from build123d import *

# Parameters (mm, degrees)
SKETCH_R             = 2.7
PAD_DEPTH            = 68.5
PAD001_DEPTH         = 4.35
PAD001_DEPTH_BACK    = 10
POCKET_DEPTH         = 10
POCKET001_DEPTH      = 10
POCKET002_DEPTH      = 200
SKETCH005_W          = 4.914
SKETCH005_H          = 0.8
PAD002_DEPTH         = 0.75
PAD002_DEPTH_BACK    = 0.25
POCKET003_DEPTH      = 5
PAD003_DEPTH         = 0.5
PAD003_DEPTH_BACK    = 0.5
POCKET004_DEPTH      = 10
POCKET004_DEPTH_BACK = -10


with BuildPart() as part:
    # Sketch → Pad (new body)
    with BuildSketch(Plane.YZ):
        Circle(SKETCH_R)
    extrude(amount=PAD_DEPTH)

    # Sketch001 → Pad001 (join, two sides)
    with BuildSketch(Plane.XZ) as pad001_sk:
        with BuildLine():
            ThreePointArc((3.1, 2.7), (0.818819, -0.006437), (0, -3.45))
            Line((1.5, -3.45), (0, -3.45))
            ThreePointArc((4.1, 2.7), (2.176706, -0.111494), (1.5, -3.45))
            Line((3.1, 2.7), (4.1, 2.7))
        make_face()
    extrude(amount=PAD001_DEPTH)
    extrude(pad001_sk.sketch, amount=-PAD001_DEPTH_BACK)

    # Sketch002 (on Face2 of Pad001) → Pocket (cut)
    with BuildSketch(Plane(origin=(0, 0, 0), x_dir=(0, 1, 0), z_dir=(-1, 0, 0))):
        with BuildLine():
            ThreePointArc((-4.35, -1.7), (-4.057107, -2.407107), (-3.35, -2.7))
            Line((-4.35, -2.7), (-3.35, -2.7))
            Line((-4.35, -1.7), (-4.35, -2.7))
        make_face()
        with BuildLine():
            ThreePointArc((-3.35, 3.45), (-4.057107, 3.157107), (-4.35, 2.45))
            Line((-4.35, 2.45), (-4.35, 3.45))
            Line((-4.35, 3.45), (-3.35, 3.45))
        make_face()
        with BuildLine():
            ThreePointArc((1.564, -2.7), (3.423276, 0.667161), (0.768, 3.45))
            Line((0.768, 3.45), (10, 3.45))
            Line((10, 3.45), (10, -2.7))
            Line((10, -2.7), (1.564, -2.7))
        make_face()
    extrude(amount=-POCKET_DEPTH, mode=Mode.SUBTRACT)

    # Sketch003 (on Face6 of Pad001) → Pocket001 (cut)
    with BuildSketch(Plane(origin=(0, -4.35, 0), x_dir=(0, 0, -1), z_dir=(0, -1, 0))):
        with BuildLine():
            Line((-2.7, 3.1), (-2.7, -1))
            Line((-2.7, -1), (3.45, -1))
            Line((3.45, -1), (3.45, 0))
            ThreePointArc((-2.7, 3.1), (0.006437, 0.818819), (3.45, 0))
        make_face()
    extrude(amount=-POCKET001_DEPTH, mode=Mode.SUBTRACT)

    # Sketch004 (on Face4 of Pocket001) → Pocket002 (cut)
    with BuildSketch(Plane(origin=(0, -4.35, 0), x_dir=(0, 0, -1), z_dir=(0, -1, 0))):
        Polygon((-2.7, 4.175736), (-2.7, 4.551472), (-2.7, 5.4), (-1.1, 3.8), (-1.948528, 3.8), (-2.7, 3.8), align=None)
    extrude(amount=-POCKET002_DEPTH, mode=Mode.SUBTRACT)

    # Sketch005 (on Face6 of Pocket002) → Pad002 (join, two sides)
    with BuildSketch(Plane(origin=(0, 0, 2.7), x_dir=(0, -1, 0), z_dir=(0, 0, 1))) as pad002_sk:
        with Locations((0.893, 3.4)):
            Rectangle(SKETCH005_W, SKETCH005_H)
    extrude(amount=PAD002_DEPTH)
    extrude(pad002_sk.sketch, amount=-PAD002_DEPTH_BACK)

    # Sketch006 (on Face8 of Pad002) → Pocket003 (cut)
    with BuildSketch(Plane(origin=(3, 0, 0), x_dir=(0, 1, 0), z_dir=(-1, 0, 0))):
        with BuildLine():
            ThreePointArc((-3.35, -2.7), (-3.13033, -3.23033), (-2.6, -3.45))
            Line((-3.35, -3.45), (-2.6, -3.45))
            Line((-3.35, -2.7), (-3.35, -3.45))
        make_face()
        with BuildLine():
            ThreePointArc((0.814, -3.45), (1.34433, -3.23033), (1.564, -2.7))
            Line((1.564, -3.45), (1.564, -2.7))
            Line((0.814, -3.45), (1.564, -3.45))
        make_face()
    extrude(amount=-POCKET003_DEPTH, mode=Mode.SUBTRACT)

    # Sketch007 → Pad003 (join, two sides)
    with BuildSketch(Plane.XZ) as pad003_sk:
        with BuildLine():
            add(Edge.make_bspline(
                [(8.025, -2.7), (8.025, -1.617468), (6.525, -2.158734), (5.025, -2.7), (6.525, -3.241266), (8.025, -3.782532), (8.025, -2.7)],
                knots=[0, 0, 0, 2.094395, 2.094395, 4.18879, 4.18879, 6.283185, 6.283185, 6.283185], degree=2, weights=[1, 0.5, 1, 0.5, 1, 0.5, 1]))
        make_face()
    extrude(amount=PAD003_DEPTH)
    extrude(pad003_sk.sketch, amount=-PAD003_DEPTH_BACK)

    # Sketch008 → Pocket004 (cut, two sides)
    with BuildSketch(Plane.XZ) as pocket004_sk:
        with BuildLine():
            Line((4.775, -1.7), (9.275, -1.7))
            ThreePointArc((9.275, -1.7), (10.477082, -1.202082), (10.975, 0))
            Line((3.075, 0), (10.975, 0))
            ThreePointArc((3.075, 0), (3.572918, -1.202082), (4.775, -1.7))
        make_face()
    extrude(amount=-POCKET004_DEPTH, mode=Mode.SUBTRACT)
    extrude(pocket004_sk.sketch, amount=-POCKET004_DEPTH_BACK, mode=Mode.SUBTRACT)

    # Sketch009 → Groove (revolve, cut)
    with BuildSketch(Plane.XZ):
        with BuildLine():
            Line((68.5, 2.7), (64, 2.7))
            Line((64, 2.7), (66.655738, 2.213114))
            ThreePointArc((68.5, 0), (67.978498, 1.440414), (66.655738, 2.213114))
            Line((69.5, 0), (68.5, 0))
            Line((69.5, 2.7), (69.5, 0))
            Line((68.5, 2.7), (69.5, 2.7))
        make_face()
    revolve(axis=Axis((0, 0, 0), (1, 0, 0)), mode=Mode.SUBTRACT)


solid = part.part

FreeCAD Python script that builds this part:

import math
import FreeCAD as App
import Part
import Sketcher
from FreeCAD import Vector
Q = App.Units.Quantity

doc = App.newDocument("Part")
body = doc.addObject("PartDesign::Body", "Body")

sketch1 = body.newObject("Sketcher::SketchObject", "Sketch")
sketch1.AttachmentSupport = (doc.getObject("YZ_Plane"), [""])
sketch1.MapMode = "FlatFace"
sketch1.addGeometry(Part.Circle(Vector(0, 0, 0), Vector(0, 0, 1), 2.7), False)
sketch1.addConstraint([
    Sketcher.Constraint("Coincident", 0, 3, -1, 1),
    Sketcher.Constraint("Diameter", 0, Q("5.4 mm")),
])
pad1 = body.newObject("PartDesign::Pad", "Pad")
pad1.Profile = sketch1
pad1.Length = 68.5

sketch2 = body.newObject("Sketcher::SketchObject", "Sketch001")
sketch2.AttachmentSupport = (doc.getObject("XZ_Plane"), [""])
sketch2.MapMode = "FlatFace"
sketch2.addGeometry([
    Part.ArcOfCircle(Part.Circle(Vector(7.7, -3.5, 0), Vector(0, 0, 1), 7.7), math.radians(126), math.radians(180)),
    Part.LineSegment(Vector(0, -3.5, 0), Vector(1.5, -3.5, 0)),
    Part.ArcOfCircle(Part.Circle(Vector(10.1, -3.5, 0), Vector(0, 0, 1), 8.6), math.radians(134), math.radians(180)),
    Part.LineSegment(Vector(4.1, 2.7, 0), Vector(3.1, 2.7, 0)),
], False)
sketch2.addConstraint([
    Sketcher.Constraint("Coincident", 0, 2, 1, 1),
    Sketcher.Constraint("Coincident", 1, 2, 2, 2),
    Sketcher.Constraint("Coincident", 2, 1, 3, 1),
    Sketcher.Constraint("Coincident", 3, 2, 0, 1),
    Sketcher.Constraint("Horizontal", 1),
    Sketcher.Constraint("Horizontal", 3),
    Sketcher.Constraint("PointOnObject", 0, 2, -2),
    Sketcher.Constraint("Horizontal", 0, 3, 2, 3),
    Sketcher.Constraint("Horizontal", 2, 3, 0, 2),
    Sketcher.Constraint("DistanceX", 3, 2, 3, 1, Q("1 mm")),
    Sketcher.Constraint("DistanceX", 1, 1, 1, 2, Q("1.5 mm")),
    Sketcher.Constraint("DistanceX", -1, 1, 2, 1, Q("4.1 mm")),
    Sketcher.Constraint("DistanceY", -1, 1, 2, 1, Q("2.7 mm")),
    Sketcher.Constraint("DistanceY", 0, 3, -1, 1, Q("3.45 mm")),
])
pad2 = body.newObject("PartDesign::Pad", "Pad001")
pad2.Profile = sketch2
pad2.Type = "TwoLengths"
pad2.Length = 4.35
pad2.Length2 = 10

sketch3 = body.newObject("Sketcher::SketchObject", "Sketch002")
sketch3.AttachmentSupport = (doc.getObject("YZ_Plane"), [""])
sketch3.MapMode = "FlatFace"
sketch3.addGeometry([
    Part.ArcOfCircle(Part.Circle(Vector(-3.4, 1.7, 0), Vector(0, 0, 1), 1), math.radians(90), math.radians(180)),
    Part.LineSegment(Vector(-4.3, 1.7, 0), Vector(-4.3, 2.7, 0)),
    Part.LineSegment(Vector(-4.3, 2.7, 0), Vector(-3.4, 2.7, 0)),
    Part.ArcOfCircle(Part.Circle(Vector(-3.4, -2.5, 0), Vector(0, 0, 1), 1), math.radians(180), math.radians(270)),
    Part.LineSegment(Vector(-3.4, -3.5, 0), Vector(-4.3, -3.5, 0)),
    Part.LineSegment(Vector(-4.3, -3.5, 0), Vector(-4.3, -2.5, 0)),
    Part.ArcOfCircle(Part.Circle(Vector(0.2, -0.2, 0), Vector(0, 0, 1), 3.3), math.radians(-80), math.radians(65)),
    Part.LineSegment(Vector(1.6, 2.7, 0), Vector(10, 2.7, 0)),
    Part.LineSegment(Vector(10, 2.7, 0), Vector(10, -3.5, 0)),
    Part.LineSegment(Vector(10, -3.5, 0), Vector(0.8, -3.5, 0)),
], False)
sketch3.addConstraint([
    Sketcher.Constraint("Tangent", 0, 2, 1, 1),
    Sketcher.Constraint("Coincident", 1, 2, 2, 1),
    Sketcher.Constraint("Tangent", 2, 2, 0, 1),
    Sketcher.Constraint("Tangent", 3, 2, 4, 1),
    Sketcher.Constraint("Coincident", 4, 2, 5, 1),
    Sketcher.Constraint("Tangent", 5, 2, 3, 1),
    Sketcher.Constraint("Coincident", 6, 2, 7, 1),
    Sketcher.Constraint("Coincident", 7, 2, 8, 1),
    Sketcher.Constraint("Coincident", 8, 2, 9, 1),
    Sketcher.Constraint("Coincident", 9, 2, 6, 1),
    Sketcher.Constraint("Vertical", 1),
    Sketcher.Constraint("Horizontal", 2),
    Sketcher.Constraint("Horizontal", 4),
    Sketcher.Constraint("Vertical", 5),
    Sketcher.Constraint("Horizontal", 7),
    Sketcher.Constraint("Vertical", 8),
    Sketcher.Constraint("Horizontal", 9),
    Sketcher.Constraint("Equal", 0, 3),
    Sketcher.Constraint("Horizontal", 2, 2, 6, 2),
    Sketcher.Constraint("Horizontal", 4, 2, 8, 2),
    Sketcher.Constraint("Vertical", 0, 3, 3, 3),
    Sketcher.Constraint("Radius", 0, Q("0.999999 mm")),
    Sketcher.Constraint("Radius", 6, Q("3.25 mm")),
    Sketcher.Constraint("DistanceX", -1, 1, 7, 2, Q("10 mm")),
    Sketcher.Constraint("DistanceY", 8, 2, 8, 1, Q("6.15 mm")),
    Sketcher.Constraint("DistanceY", -1, 1, 0, 3, Q("1.700001 mm")),
    Sketcher.Constraint("DistanceX", 7, 1, 7, 2, Q("8.436 mm")),
    Sketcher.Constraint("DistanceX", 9, 2, 9, 1, Q("9.232 mm")),
    Sketcher.Constraint("DistanceX", 0, 3, -1, 1, Q("3.350001 mm")),
])
pocket1 = body.newObject("PartDesign::Pocket", "Pocket")
pocket1.Profile = sketch3
pocket1.Length = 10
pocket1.Reversed = True

sketch4 = body.newObject("Sketcher::SketchObject", "Sketch003")
sketch4.AttachmentSupport = (doc.getObject("XZ_Plane"), [""])
sketch4.MapMode = "FlatFace"
sketch4.AttachmentOffset = App.Placement(Vector(0, 0, 4.35), App.Rotation())
sketch4.addGeometry([
    Part.LineSegment(Vector(3.1, 2.7, 0), Vector(-1, 2.7, 0)),
    Part.LineSegment(Vector(-1, 2.7, 0), Vector(-1, -3.5, 0)),
    Part.LineSegment(Vector(-1, -3.5, 0), Vector(0, -3.5, 0)),
    Part.ArcOfCircle(Part.Circle(Vector(7.7, -3.5, 0), Vector(0, 0, 1), 7.7), math.radians(126), math.radians(180)),
], False)
sketch4.addConstraint([
    Sketcher.Constraint("Coincident", 0, 2, 1, 1),
    Sketcher.Constraint("Coincident", 1, 2, 2, 1),
    Sketcher.Constraint("Coincident", 2, 2, 3, 2),
    Sketcher.Constraint("Coincident", 3, 1, 0, 1),
    Sketcher.Constraint("Horizontal", 0),
    Sketcher.Constraint("Vertical", 1),
    Sketcher.Constraint("Horizontal", 2),
    Sketcher.Constraint("PointOnObject", 2, 2, -2),
    Sketcher.Constraint("Horizontal", 3, 3, 1, 2),
    Sketcher.Constraint("DistanceX", 2, 1, 2, 2, Q("1 mm")),
    Sketcher.Constraint("DistanceX", 0, 2, 0, 1, Q("4.1 mm")),
    Sketcher.Constraint("DistanceY", 1, 2, 1, 1, Q("6.15 mm")),
    Sketcher.Constraint("DistanceY", -1, 1, 0, 2, Q("2.7 mm")),
])
pocket2 = body.newObject("PartDesign::Pocket", "Pocket001")
pocket2.Profile = sketch4
pocket2.Length = 10

sketch5 = body.newObject("Sketcher::SketchObject", "Sketch004")
sketch5.AttachmentSupport = (doc.getObject("XZ_Plane"), [""])
sketch5.MapMode = "FlatFace"
sketch5.AttachmentOffset = App.Placement(Vector(0, 0, 4.35), App.Rotation())
sketch5.addGeometry([
    Part.LineSegment(Vector(5.4, 2.7, 0), Vector(3.8, 2.7, 0)),
    Part.LineSegment(Vector(3.8, 2.7, 0), Vector(3.8, 1.1, 0)),
    Part.LineSegment(Vector(3.8, 1.1, 0), Vector(5.4, 2.7, 0)),
], False)
sketch5.addConstraint([
    Sketcher.Constraint("Coincident", 0, 2, 1, 1),
    Sketcher.Constraint("Coincident", 1, 2, 2, 1),
    Sketcher.Constraint("Coincident", 2, 2, 0, 1),
    Sketcher.Constraint("Horizontal", 0),
    Sketcher.Constraint("Vertical", 1),
    Sketcher.Constraint("Equal", 0, 1),
    Sketcher.Constraint("DistanceX", 0, 2, 0, 1, Q("1.6 mm")),
    Sketcher.Constraint("DistanceX", -1, 1, 0, 2, Q("3.8 mm")),
    Sketcher.Constraint("DistanceY", -1, 1, 0, 2, Q("2.7 mm")),
])
pocket3 = body.newObject("PartDesign::Pocket", "Pocket002")
pocket3.Profile = sketch5
pocket3.Length = 200

sketch6 = body.newObject("Sketcher::SketchObject", "Sketch005")
sketch6.AttachmentSupport = (doc.getObject("XY_Plane"), [""])
sketch6.MapMode = "FlatFace"
sketch6.AttachmentOffset = App.Placement(Vector(0, 0, 2.7), App.Rotation())
sketch6.addGeometry([
    Part.LineSegment(Vector(3.8, 1.6, 0), Vector(3, 1.6, 0)),
    Part.LineSegment(Vector(3, 1.6, 0), Vector(3, -3.4, 0)),
    Part.LineSegment(Vector(3, -3.4, 0), Vector(3.8, -3.4, 0)),
    Part.LineSegment(Vector(3.8, -3.4, 0), Vector(3.8, 1.6, 0)),
], False)
sketch6.addConstraint([
    Sketcher.Constraint("Coincident", 0, 2, 1, 1),
    Sketcher.Constraint("Coincident", 1, 2, 2, 1),
    Sketcher.Constraint("Coincident", 2, 2, 3, 1),
    Sketcher.Constraint("Coincident", 3, 2, 0, 1),
    Sketcher.Constraint("Horizontal", 0),
    Sketcher.Constraint("Vertical", 1),
    Sketcher.Constraint("Horizontal", 2),
    Sketcher.Constraint("Vertical", 3),
    Sketcher.Constraint("DistanceX", 0, 2, 0, 1, Q("0.8 mm")),
    Sketcher.Constraint("DistanceX", -1, 1, 0, 2, Q("3 mm")),
    Sketcher.Constraint("DistanceY", 1, 2, 1, 1, Q("4.914 mm")),
    Sketcher.Constraint("DistanceY", 1, 2, -1, 1, Q("3.35 mm")),
])
pad3 = body.newObject("PartDesign::Pad", "Pad002")
pad3.Profile = sketch6
pad3.Type = "TwoLengths"
pad3.Length = 0.75
pad3.Length2 = 0.25

sketch7 = body.newObject("Sketcher::SketchObject", "Sketch006")
sketch7.AttachmentSupport = (doc.getObject("YZ_Plane"), [""])
sketch7.MapMode = "FlatFace"
sketch7.AttachmentOffset = App.Placement(Vector(0, 0, 3), App.Rotation())
sketch7.addGeometry([
    Part.ArcOfCircle(Part.Circle(Vector(-2.6, 2.7, 0), Vector(0, 0, 1), 0.8), math.radians(90), math.radians(180)),
    Part.LineSegment(Vector(-3.4, 2.7, 0), Vector(-3.4, 3.5, 0)),
    Part.LineSegment(Vector(-3.4, 3.5, 0), Vector(-2.6, 3.5, 0)),
    Part.ArcOfCircle(Part.Circle(Vector(0.8, 2.7, 0), Vector(0, 0, 1), 0.8), math.radians(0), math.radians(90)),
    Part.LineSegment(Vector(0.8, 3.5, 0), Vector(1.6, 3.5, 0)),
    Part.LineSegment(Vector(1.6, 3.5, 0), Vector(1.6, 2.7, 0)),
], False)
sketch7.addConstraint([
    Sketcher.Constraint("Tangent", 0, 2, 1, 1),
    Sketcher.Constraint("Coincident", 1, 2, 2, 1),
    Sketcher.Constraint("Tangent", 2, 2, 0, 1),
    Sketcher.Constraint("Tangent", 3, 2, 4, 1),
    Sketcher.Constraint("Coincident", 4, 2, 5, 1),
    Sketcher.Constraint("Tangent", 5, 2, 3, 1),
    Sketcher.Constraint("Vertical", 1),
    Sketcher.Constraint("Horizontal", 2),
    Sketcher.Constraint("Horizontal", 4),
    Sketcher.Constraint("Vertical", 5),
    Sketcher.Constraint("Equal", 0, 3),
    Sketcher.Constraint("Horizontal", 0, 3, 3, 3),
    Sketcher.Constraint("Radius", 0, Q("0.75 mm")),
    Sketcher.Constraint("DistanceX", 0, 3, -1, 1, Q("2.6 mm")),
    Sketcher.Constraint("DistanceY", -1, 1, 0, 3, Q("2.7 mm")),
    Sketcher.Constraint("DistanceX", -1, 1, 3, 3, Q("0.814 mm")),
])
pocket4 = body.newObject("PartDesign::Pocket", "Pocket003")
pocket4.Profile = sketch7
pocket4.Length = 5
pocket4.Reversed = True

sketch8 = body.newObject("Sketcher::SketchObject", "Sketch007")
sketch8.AttachmentSupport = (doc.getObject("XZ_Plane"), [""])
sketch8.MapMode = "FlatFace"
sketch8.addGeometry(Part.BSplineCurve([Vector(8.025, -2.7, 0), Vector(8.025, -1.617468, 0), Vector(6.525, -2.158734, 0), Vector(5.025, -2.7, 0), Vector(6.525, -3.241266, 0), Vector(8.025, -3.782532, 0), Vector(8.025, -2.7, 0)], [3, 2, 2, 3], [0, 2.094395, 4.18879, 6.283185], False, 2, [1, 0.5, 1, 0.5, 1, 0.5, 1], False), False)
sketch8.addConstraint(Sketcher.Constraint("Block", 0))
pad4 = body.newObject("PartDesign::Pad", "Pad003")
pad4.Profile = sketch8
pad4.Type = "TwoLengths"
pad4.Length = 0.5
pad4.Length2 = 0.5

sketch9 = body.newObject("Sketcher::SketchObject", "Sketch008")
sketch9.AttachmentSupport = (doc.getObject("XZ_Plane"), [""])
sketch9.MapMode = "FlatFace"
sketch9.addGeometry([
    Part.LineSegment(Vector(4.8, -1.7, 0), Vector(9.3, -1.7, 0)),
    Part.ArcOfCircle(Part.Circle(Vector(9.3, 0, 0), Vector(0, 0, 1), 1.7), math.radians(-90), math.radians(0)),
    Part.LineSegment(Vector(11, 0, 0), Vector(3.1, 0, 0)),
    Part.ArcOfCircle(Part.Circle(Vector(4.8, 0, 0), Vector(0, 0, 1), 1.7), math.radians(180), math.radians(270)),
], False)
sketch9.addConstraint([
    Sketcher.Constraint("Tangent", 0, 2, 1, 1),
    Sketcher.Constraint("Coincident", 1, 2, 2, 1),
    Sketcher.Constraint("Coincident", 2, 2, 3, 1),
    Sketcher.Constraint("Tangent", 3, 2, 0, 1),
    Sketcher.Constraint("Horizontal", 0),
    Sketcher.Constraint("Horizontal", 2),
    Sketcher.Constraint("Equal", 1, 3),
    Sketcher.Constraint("PointOnObject", 1, 3, -1),
    Sketcher.Constraint("PointOnObject", 1, 2, -1),
    Sketcher.Constraint("Radius", 1, Q("1.699998 mm")),
    Sketcher.Constraint("DistanceX", 0, 1, 0, 2, Q("4.5 mm")),
    Sketcher.Constraint("DistanceX", -1, 1, 1, 3, Q("9.275002 mm")),
])
pocket5 = body.newObject("PartDesign::Pocket", "Pocket004")
pocket5.Profile = sketch9
pocket5.Type = "ThroughAll"
pocket5.Midplane = True

sketch10 = body.newObject("Sketcher::SketchObject", "Sketch009")
sketch10.AttachmentSupport = (doc.getObject("XZ_Plane"), [""])
sketch10.MapMode = "FlatFace"
sketch10.addGeometry([
    Part.LineSegment(Vector(64, 2.7, 0), Vector(66.7, 2.2, 0)),
    Part.ArcOfCircle(Part.Circle(Vector(66.2, 0, 0), Vector(0, 0, 1), 2.3), math.radians(0), math.radians(80)),
    Part.LineSegment(Vector(68.5, 0, 0), Vector(69.5, 0, 0)),
    Part.LineSegment(Vector(69.5, 0, 0), Vector(69.5, 2.7, 0)),
    Part.LineSegment(Vector(69.5, 2.7, 0), Vector(64, 2.7, 0)),
], False)
sketch10.addConstraint([
    Sketcher.Constraint("Tangent", 0, 2, 1, 2),
    Sketcher.Constraint("Coincident", 1, 1, 2, 1),
    Sketcher.Constraint("Coincident", 2, 2, 3, 1),
    Sketcher.Constraint("Coincident", 3, 2, 4, 1),
    Sketcher.Constraint("Coincident", 4, 2, 0, 1),
    Sketcher.Constraint("Horizontal", 2),
    Sketcher.Constraint("Vertical", 3),
    Sketcher.Constraint("Horizontal", 4),
    Sketcher.Constraint("PointOnObject", 1, 3, -1),
    Sketcher.Constraint("PointOnObject", 1, 1, -1),
    Sketcher.Constraint("DistanceX", 2, 1, 2, 2, Q("1 mm")),
    Sketcher.Constraint("Radius", 1, Q("2.25 mm")),
    Sketcher.Constraint("DistanceX", 4, 2, 4, 1, Q("5.5 mm")),
    Sketcher.Constraint("DistanceY", 3, 1, 3, 2, Q("2.7 mm")),
    Sketcher.Constraint("DistanceX", -1, 1, 4, 2, Q("64 mm")),
])
groove = body.newObject("PartDesign::Groove", "Groove")
groove.Profile = sketch10
groove.ReferenceAxis = (sketch10, ["H_Axis"])
groove.Angle = 360

doc.recompute()
